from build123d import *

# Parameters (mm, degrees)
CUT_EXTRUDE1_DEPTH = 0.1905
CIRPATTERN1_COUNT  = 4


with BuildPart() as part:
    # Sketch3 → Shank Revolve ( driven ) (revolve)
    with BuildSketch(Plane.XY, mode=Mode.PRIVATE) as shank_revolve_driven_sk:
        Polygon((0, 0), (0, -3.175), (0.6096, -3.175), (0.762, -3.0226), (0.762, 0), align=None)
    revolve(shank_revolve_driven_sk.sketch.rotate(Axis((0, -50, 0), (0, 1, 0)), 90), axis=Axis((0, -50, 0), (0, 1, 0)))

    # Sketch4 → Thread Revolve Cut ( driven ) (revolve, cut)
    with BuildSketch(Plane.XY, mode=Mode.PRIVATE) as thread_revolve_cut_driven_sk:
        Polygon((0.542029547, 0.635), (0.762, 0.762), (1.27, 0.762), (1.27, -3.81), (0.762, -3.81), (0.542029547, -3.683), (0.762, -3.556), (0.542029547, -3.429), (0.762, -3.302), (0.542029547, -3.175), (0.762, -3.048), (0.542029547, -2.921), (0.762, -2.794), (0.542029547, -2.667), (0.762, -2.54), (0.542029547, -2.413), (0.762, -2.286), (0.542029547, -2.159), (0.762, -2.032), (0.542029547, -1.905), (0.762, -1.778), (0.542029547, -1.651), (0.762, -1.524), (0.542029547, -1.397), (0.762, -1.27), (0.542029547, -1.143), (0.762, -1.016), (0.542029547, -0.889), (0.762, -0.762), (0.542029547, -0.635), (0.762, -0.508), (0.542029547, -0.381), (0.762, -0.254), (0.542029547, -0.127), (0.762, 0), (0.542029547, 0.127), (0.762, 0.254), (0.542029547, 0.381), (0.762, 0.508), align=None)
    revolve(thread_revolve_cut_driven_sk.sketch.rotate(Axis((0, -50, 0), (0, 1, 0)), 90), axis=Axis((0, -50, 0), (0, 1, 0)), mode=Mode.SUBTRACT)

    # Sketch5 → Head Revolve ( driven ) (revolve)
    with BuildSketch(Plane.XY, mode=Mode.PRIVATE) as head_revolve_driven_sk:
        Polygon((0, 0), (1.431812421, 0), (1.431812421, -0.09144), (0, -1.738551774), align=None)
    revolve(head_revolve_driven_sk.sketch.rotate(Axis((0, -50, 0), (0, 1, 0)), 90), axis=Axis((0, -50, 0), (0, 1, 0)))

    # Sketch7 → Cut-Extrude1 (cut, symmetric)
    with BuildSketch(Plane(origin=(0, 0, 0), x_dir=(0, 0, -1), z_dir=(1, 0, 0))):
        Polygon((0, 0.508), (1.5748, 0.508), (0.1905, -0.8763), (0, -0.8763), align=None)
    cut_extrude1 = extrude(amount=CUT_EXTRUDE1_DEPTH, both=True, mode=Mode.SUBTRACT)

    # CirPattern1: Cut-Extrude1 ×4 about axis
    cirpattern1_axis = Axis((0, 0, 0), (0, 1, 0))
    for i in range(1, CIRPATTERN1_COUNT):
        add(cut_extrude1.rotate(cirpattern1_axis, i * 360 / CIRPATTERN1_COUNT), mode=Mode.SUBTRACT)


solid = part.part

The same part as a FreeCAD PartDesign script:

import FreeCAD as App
import Part
import Sketcher

V = App.Vector
Q = App.Units.Quantity


def add_polygon(sketch, points):
    """Adds a closed chain of lines whose ends are joined by coincident constraints."""
    first, n = sketch.GeometryCount, len(points)
    for a, b in zip(points, points[1:] + points[:1]):
        sketch.addGeometry(Part.LineSegment(App.Vector(*a, 0), App.Vector(*b, 0)), False)
    for i in range(n):
        sketch.addConstraint(Sketcher.Constraint("Coincident", first + i, 2, first + (i + 1) % n, 1))

doc = App.newDocument("Part")
body = doc.addObject("PartDesign::Body", "Body")

# Sketch on XY plane
sketch1 = doc.addObject("Sketcher::SketchObject", "Sketch")
body.addObject(sketch1)
sketch1.AttachmentSupport = (doc.XY_Plane, [""])
sketch1.MapMode = "FlatFace"
add_polygon(sketch1, [(0, 0), (0, -3.17), (0.61, -3.17), (0.76, -3.02), (0.76, 0)])  # lines 0-4
sketch1.addConstraint([
    Sketcher.Constraint("Vertical", 0),
    Sketcher.Constraint("Horizontal", 1),
    Sketcher.Constraint("Vertical", 3),
    Sketcher.Constraint("Horizontal", 4),
    Sketcher.Constraint("Coincident", 4, 2, -1, 1),
    Sketcher.Constraint("Angle", 2, Q("45 deg")),
    Sketcher.Constraint("DistanceX", 4, 2, 4, 1, Q("0.03 in")),
    Sketcher.Constraint("DistanceX", 1, 1, 1, 2, Q("0.024 in")),
    Sketcher.Constraint("DistanceY", 0, 2, 0, 1, Q("0.125 in")),
])
revolution = doc.addObject("PartDesign::Revolution", "Revolution")
body.addObject(revolution)
revolution.Profile = sketch1
revolution.ReferenceAxis = (sketch1, ["V_Axis"])
revolution.Angle = 360

# Sketch on XY plane
sketch2 = doc.addObject("Sketcher::SketchObject", "Sketch001")
body.addObject(sketch2)
sketch2.AttachmentSupport = (doc.XY_Plane, [""])
sketch2.MapMode = "FlatFace"
add_polygon(sketch2, [(0.76, 0.76), (0.54, 0.64), (0.76, 0.51), (0.54, 0.38), (0.76, 0.25), (0.54, 0.13), (0.76, 0), (0.54, -0.13), (0.76, -0.25), (0.54, -0.38), (0.76, -0.51), (0.54, -0.64), (0.76, -0.76), (0.54, -0.89), (0.76, -1.02), (0.54, -1.14), (0.76, -1.27), (0.54, -1.4), (0.76, -1.52), (0.54, -1.65), (0.76, -1.78), (0.54, -1.91), (0.76, -2.03), (0.54, -2.16), (0.76, -2.29), (0.54, -2.41), (0.76, -2.54), (0.54, -2.67), (0.76, -2.79), (0.54, -2.92), (0.76, -3.05), (0.54, -3.17), (0.76, -3.3), (0.54, -3.43), (0.76, -3.56), (0.54, -3.68), (0.76, -3.81), (1.27, -3.81), (1.27, 0.76)])  # lines 0-38
sketch2.addConstraint([
    Sketcher.Constraint("Horizontal", 36),
    Sketcher.Constraint("Vertical", 37),
    Sketcher.Constraint("Horizontal", 38),
    Sketcher.Constraint("Symmetric", 4, 2, 6, 2, -1),
    Sketcher.Constraint("Symmetric", 3, 2, 7, 2, -1),
    Sketcher.Constraint("Symmetric", 2, 2, 8, 2, -1),
    Sketcher.Constraint("Symmetric", 1, 2, 9, 2, -1),
    Sketcher.Constraint("Symmetric", 0, 2, 10, 2, -1),
    Sketcher.Constraint("Symmetric", 11, 2, 38, 2, -1),
    Sketcher.Constraint("PointOnObject", 5, 2, -1),
    Sketcher.Constraint("Parallel", 0, 2),
    Sketcher.Constraint("Parallel", 1, 3),
    Sketcher.Constraint("Parallel", 2, 4),
    Sketcher.Constraint("Parallel", 3, 5),
    Sketcher.Constraint("Parallel", 4, 6),
    Sketcher.Constraint("Parallel", 10, 12),
    Sketcher.Constraint("Parallel", 11, 13),
    Sketcher.Constraint("Parallel", 12, 14),
    Sketcher.Constraint("Parallel", 13, 15),
    Sketcher.Constraint("Parallel", 14, 16),
    Sketcher.Constraint("Parallel", 15, 17),
    Sketcher.Constraint("Parallel", 16, 18),
    Sketcher.Constraint("Parallel", 17, 19),
    Sketcher.Constraint("Parallel", 18, 20),
    Sketcher.Constraint("Parallel", 19, 21),
    Sketcher.Constraint("Parallel", 20, 22),
    Sketcher.Constraint("Parallel", 21, 23),
    Sketcher.Constraint("Parallel", 22, 24),
    Sketcher.Constraint("Parallel", 23, 25),
    Sketcher.Constraint("Parallel", 24, 26),
    Sketcher.Constraint("Parallel", 25, 27),
    Sketcher.Constraint("Parallel", 26, 28),
    Sketcher.Constraint("Parallel", 27, 29),
    Sketcher.Constraint("Parallel", 28, 30),
    Sketcher.Constraint("Parallel", 29, 31),
    Sketcher.Constraint("Parallel", 30, 32),
    Sketcher.Constraint("Parallel", 31, 33),
    Sketcher.Constraint("Parallel", 32, 34),
    Sketcher.Constraint("Parallel", 33, 35),
    Sketcher.Constraint("Vertical", 0, 2, 2, 2),
    Sketcher.Constraint("Vertical", 1, 2, 3, 2),
    Sketcher.Constraint("Vertical", 2, 2, 4, 2),
    Sketcher.Constraint("Vertical", 3, 2, 5, 2),
    Sketcher.Constraint("Vertical", 9, 2, 11, 2),
    Sketcher.Constraint("Vertical", 10, 2, 12, 2),
    Sketcher.Constraint("Vertical", 11, 2, 13, 2),
    Sketcher.Constraint("Vertical", 12, 2, 14, 2),
    Sketcher.Constraint("Vertical", 13, 2, 15, 2),
    Sketcher.Constraint("Vertical", 14, 2, 16, 2),
    Sketcher.Constraint("Vertical", 15, 2, 17, 2),
    Sketcher.Constraint("Vertical", 16, 2, 18, 2),
    Sketcher.Constraint("Vertical", 17, 2, 19, 2),
    Sketcher.Constraint("Vertical", 18, 2, 20, 2),
    Sketcher.Constraint("Vertical", 19, 2, 21, 2),
    Sketcher.Constraint("Vertical", 20, 2, 22, 2),
    Sketcher.Constraint("Vertical", 21, 2, 23, 2),
    Sketcher.Constraint("Vertical", 22, 2, 24, 2),
    Sketcher.Constraint("Vertical", 23, 2, 25, 2),
    Sketcher.Constraint("Vertical", 24, 2, 26, 2),
    Sketcher.Constraint("Vertical", 25, 2, 27, 2),
    Sketcher.Constraint("Vertical", 26, 2, 28, 2),
    Sketcher.Constraint("Vertical", 27, 2, 29, 2),
    Sketcher.Constraint("Vertical", 28, 2, 30, 2),
    Sketcher.Constraint("Vertical", 29, 2, 31, 2),
    Sketcher.Constraint("Vertical", 30, 2, 32, 2),
    Sketcher.Constraint("Vertical", 31, 2, 33, 2),
    Sketcher.Constraint("Vertical", 32, 2, 34, 2),
    Sketcher.Constraint("Vertical", 33, 2, 35, 2),
    Sketcher.Constraint("Angle", 0, Q("-150 deg")),
    Sketcher.Constraint("DistanceX", 36, 1, 36, 2, Q("0.02 in")),
    Sketcher.Constraint("DistanceY", 37, 1, 37, 2, Q("0.18 in")),
    Sketcher.Constraint("DistanceX", -1, 1, 1, 2, Q("0.03 in")),
])
groove = doc.addObject("PartDesign::Groove", "Groove")
body.addObject(groove)
groove.Profile = sketch2
groove.ReferenceAxis = (sketch2, ["V_Axis"])
groove.Angle = 360

# Sketch on XY plane
sketch3 = doc.addObject("Sketcher::SketchObject", "Sketch002")
body.addObject(sketch3)
sketch3.AttachmentSupport = (doc.XY_Plane, [""])
sketch3.MapMode = "FlatFace"
add_polygon(sketch3, [(1.43, 0), (0, 0), (0, -1.74), (1.43, -0.09)])  # lines 0-3
sketch3.addConstraint([
    Sketcher.Constraint("Horizontal", 0),
    Sketcher.Constraint("Vertical", 1),
    Sketcher.Constraint("Vertical", 3),
    Sketcher.Constraint("Coincident", 0, 2, -1, 1),
    Sketcher.Constraint("Angle", 2, Q("49 deg")),
    Sketcher.Constraint("DistanceY", 3, 1, 3, 2, Q("0.0036 in")),
    Sketcher.Constraint("DistanceY", 1, 2, 1, 1, Q("1.738552 mm")),
])
revolution2 = doc.addObject("PartDesign::Revolution", "Revolution001")
body.addObject(revolution2)
revolution2.Profile = sketch3
revolution2.ReferenceAxis = (sketch3, ["V_Axis"])
revolution2.Angle = 360

# Sketch on YZ plane
sketch4 = doc.addObject("Sketcher::SketchObject", "Sketch003")
body.addObject(sketch4)
sketch4.AttachmentSupport = (doc.YZ_Plane, [""])
sketch4.MapMode = "FlatFace"
add_polygon(sketch4, [(0.51, -1.57), (0.51, 0), (-0.88, 0), (-0.88, -0.19)])  # lines 0-3
sketch4.addConstraint([
    Sketcher.Constraint("Vertical", 0),
    Sketcher.Constraint("Horizontal", 1),
    Sketcher.Constraint("Vertical", 2),
    Sketcher.Constraint("PointOnObject", 0, 2, -1),
    Sketcher.Constraint("Angle", 3, Q("-45 deg")),
    Sketcher.Constraint("DistanceY", 0, 1, 0, 2, Q("0.062 in")),
    Sketcher.Constraint("DistanceX", -1, 1, 0, 2, Q("0.02 in")),
    Sketcher.Constraint("DistanceX", 1, 2, 1, 1, Q("0.0545 in")),
])
pocket1 = doc.addObject("PartDesign::Pocket", "Pocket")
body.addObject(pocket1)
pocket1.Profile = sketch4
pocket1.Length = Q("0.015 in")
pocket1.Midplane = True
doc.recompute()

polarpattern = doc.addObject("PartDesign::PolarPattern", "PolarPattern")
body.addObject(polarpattern)
polarpattern.Originals = [pocket1]
polarpattern.Axis = (doc.Y_Axis, [""])
polarpattern.Angle = 360
polarpattern.Occurrences = 4
body.Tip = polarpattern

doc.recompute()
